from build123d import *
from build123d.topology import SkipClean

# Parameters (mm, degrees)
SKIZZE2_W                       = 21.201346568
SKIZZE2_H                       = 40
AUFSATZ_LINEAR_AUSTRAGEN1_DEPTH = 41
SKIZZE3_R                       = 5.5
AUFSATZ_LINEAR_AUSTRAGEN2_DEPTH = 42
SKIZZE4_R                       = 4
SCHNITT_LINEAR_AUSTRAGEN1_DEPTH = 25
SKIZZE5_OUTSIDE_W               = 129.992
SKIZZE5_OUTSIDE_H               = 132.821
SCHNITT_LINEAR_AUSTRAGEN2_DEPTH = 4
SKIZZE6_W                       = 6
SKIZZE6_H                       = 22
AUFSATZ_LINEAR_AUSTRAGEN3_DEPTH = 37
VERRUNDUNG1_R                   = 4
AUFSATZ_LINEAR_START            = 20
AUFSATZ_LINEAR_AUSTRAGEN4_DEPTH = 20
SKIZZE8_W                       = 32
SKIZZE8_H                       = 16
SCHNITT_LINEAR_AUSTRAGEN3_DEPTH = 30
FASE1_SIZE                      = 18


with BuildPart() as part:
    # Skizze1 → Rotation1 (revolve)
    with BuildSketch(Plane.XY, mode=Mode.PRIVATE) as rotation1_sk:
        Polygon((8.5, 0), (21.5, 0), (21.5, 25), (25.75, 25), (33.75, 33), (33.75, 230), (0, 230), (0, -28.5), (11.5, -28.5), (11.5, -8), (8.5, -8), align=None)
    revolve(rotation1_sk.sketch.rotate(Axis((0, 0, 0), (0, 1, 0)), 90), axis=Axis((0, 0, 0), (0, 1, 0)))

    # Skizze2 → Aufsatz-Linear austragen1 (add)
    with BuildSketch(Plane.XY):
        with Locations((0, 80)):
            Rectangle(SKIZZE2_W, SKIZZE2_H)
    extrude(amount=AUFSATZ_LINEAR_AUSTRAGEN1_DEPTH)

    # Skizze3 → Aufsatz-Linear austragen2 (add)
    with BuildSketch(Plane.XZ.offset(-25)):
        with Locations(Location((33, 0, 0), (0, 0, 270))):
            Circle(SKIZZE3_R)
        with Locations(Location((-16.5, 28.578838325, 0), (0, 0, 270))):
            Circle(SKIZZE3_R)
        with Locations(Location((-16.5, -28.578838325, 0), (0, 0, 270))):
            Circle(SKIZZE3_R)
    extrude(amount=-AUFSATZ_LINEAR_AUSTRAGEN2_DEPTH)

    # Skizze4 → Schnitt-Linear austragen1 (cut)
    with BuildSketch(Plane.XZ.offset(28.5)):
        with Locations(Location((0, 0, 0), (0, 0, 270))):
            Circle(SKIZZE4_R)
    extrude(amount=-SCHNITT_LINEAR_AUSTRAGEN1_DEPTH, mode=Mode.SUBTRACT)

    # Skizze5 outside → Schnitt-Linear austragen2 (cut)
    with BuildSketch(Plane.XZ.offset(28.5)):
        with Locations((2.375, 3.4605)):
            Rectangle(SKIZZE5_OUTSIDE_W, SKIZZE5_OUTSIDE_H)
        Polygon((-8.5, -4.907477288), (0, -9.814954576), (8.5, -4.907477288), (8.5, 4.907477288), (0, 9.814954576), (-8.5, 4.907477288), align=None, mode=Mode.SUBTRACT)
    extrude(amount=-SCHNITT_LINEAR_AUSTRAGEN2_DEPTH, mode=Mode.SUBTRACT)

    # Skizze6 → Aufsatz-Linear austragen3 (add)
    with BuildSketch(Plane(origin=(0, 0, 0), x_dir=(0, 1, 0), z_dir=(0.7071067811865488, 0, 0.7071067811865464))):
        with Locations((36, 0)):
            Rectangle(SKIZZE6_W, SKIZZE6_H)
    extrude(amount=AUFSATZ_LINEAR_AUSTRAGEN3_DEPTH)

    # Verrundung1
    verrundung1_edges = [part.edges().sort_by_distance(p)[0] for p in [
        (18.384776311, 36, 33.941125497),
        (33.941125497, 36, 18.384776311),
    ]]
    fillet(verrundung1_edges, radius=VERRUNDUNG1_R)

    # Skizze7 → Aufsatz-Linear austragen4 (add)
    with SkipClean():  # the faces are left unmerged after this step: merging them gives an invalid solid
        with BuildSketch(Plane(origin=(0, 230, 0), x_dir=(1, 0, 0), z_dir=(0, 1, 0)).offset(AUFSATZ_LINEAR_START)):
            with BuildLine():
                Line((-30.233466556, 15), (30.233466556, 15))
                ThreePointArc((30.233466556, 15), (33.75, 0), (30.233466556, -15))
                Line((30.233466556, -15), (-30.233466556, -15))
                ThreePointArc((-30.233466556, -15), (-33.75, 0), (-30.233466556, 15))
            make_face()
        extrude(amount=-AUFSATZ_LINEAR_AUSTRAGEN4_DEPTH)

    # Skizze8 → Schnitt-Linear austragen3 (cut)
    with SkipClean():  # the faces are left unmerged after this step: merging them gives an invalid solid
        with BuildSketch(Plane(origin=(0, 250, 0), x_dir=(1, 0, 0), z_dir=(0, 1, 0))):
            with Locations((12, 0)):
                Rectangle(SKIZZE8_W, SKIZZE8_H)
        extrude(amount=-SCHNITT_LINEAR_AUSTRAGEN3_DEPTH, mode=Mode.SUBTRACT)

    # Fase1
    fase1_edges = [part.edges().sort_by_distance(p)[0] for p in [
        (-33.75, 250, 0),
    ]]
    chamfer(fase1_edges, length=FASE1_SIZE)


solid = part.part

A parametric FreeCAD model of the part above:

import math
import FreeCAD as App
import Part
import Sketcher

V = App.Vector
Q = App.Units.Quantity


def edges_at(feature, points):
    """Names of the edges that pass closest to the given points."""
    edges = feature.Shape.Edges
    near = lambda p: min(range(len(edges)), key=lambda i: edges[i].distToShape(Part.Vertex(*p))[0])
    return sorted({f"Edge{near(p) + 1}" for p in points})


def add_polygon(sketch, points):
    """Adds a closed chain of lines whose ends are joined by coincident constraints."""
    first, n = sketch.GeometryCount, len(points)
    for a, b in zip(points, points[1:] + points[:1]):
        sketch.addGeometry(Part.LineSegment(App.Vector(*a, 0), App.Vector(*b, 0)), False)
    for i in range(n):
        sketch.addConstraint(Sketcher.Constraint("Coincident", first + i, 2, first + (i + 1) % n, 1))

doc = App.newDocument("Part")
body = doc.addObject("PartDesign::Body", "Body")

sketch1 = doc.addObject("Sketcher::SketchObject", "Sketch")
body.addObject(sketch1)
sketch1.AttachmentSupport = (doc.XY_Plane, [""])
sketch1.MapMode = "FlatFace"
add_polygon(sketch1, [(8.5, 0), (21.5, 0), (21.5, 25), (25.8, 25), (33.8, 33), (33.8, 230), (0, 230), (0, -28.5), (11.5, -28.5), (11.5, -8), (8.5, -8)])
sketch1.addConstraint([
    Sketcher.Constraint("Horizontal", 0),
    Sketcher.Constraint("Vertical", 1),
    Sketcher.Constraint("Horizontal", 2),
    Sketcher.Constraint("Vertical", 4),
    Sketcher.Constraint("Horizontal", 5),
    Sketcher.Constraint("Vertical", 6),
    Sketcher.Constraint("Horizontal", 7),
    Sketcher.Constraint("Vertical", 8),
    Sketcher.Constraint("Horizontal", 9),
    Sketcher.Constraint("Vertical", 10),
    Sketcher.Constraint("PointOnObject", 0, 2, -1),
    Sketcher.Constraint("PointOnObject", 5, 2, -2),
    Sketcher.Constraint("DistanceX", 0, 1, 0, 2, 13.0),
    Sketcher.Constraint("DistanceX", 9, 2, 9, 1, 3.0),
    Sketcher.Constraint("DistanceY", 1, 1, 1, 2, 25.0),
    Sketcher.Constraint("DistanceY", 4, 1, 4, 2, 197.0),
    Sketcher.Constraint("DistanceY", 10, 1, 10, 2, 8.0),
    Sketcher.Constraint("Angle", 3, Q("45 deg")),
    Sketcher.Constraint("DistanceX", 7, 1, 7, 2, 11.5),
    Sketcher.Constraint("DistanceY", 6, 2, 6, 1, 258.5),
    Sketcher.Constraint("DistanceY", 8, 1, 8, 2, 20.5),
    Sketcher.Constraint("DistanceX", 2, 1, 2, 2, 4.25),
])
revolution = doc.addObject("PartDesign::Revolution", "Revolution")
body.addObject(revolution)
revolution.Profile = sketch1
revolution.ReferenceAxis = (sketch1, ["V_Axis"])
revolution.Angle = 360

sketch2 = doc.addObject("Sketcher::SketchObject", "Sketch001")
body.addObject(sketch2)
sketch2.AttachmentSupport = (doc.XY_Plane, [""])
sketch2.MapMode = "FlatFace"
add_polygon(sketch2, [(-11, 100), (-11, 60), (11, 60), (11, 100)])
sketch2.addConstraint([
    Sketcher.Constraint("Vertical", 0),
    Sketcher.Constraint("Horizontal", 1),
    Sketcher.Constraint("Vertical", 2),
    Sketcher.Constraint("Horizontal", 3),
    Sketcher.Constraint("DistanceY", 0, 2, 0, 1, 40.0),
    Sketcher.Constraint("DistanceY", -1, 1, 0, 2, 60.0),
    Sketcher.Constraint("DistanceX", 1, 1, 1, 2, 21.201347),
    Sketcher.Constraint("DistanceX", 0, 2, -1, 1, 10.600673),
])
pad1 = doc.addObject("PartDesign::Pad", "Pad")
body.addObject(pad1)
pad1.Profile = sketch2
pad1.Length = 41

sketch3 = doc.addObject("Sketcher::SketchObject", "Sketch002")
body.addObject(sketch3)
sketch3.AttachmentSupport = (doc.XZ_Plane, [""])
sketch3.MapMode = "FlatFace"
sketch3.AttachmentOffset = App.Placement(V(0, 0, -25), App.Rotation())
sketch3.addGeometry([
    Part.Circle(V(33, 0, 0), V(0, 0, 1), 6),
    Part.Circle(V(-16, 29, 0), V(0, 0, 1), 6),
    Part.Circle(V(-16, -29, 0), V(0, 0, 1), 6),
], False)
sketch3.addConstraint([
    Sketcher.Constraint("Equal", 0, 1),
    Sketcher.Constraint("Equal", 1, 2),
    Sketcher.Constraint("Symmetric", 1, 3, 2, 3, -1),
    Sketcher.Constraint("PointOnObject", 0, 3, -1),
    Sketcher.Constraint("Diameter", 0, 11.0),
    Sketcher.Constraint("DistanceX", -1, 1, 0, 3, 33.0),
    Sketcher.Constraint("DistanceX", 1, 3, -1, 1, 16.5),
    Sketcher.Constraint("DistanceY", -1, 1, 1, 3, 28.578838),
])
pad2 = doc.addObject("PartDesign::Pad", "Pad001")
body.addObject(pad2)
pad2.Profile = sketch3
pad2.Length = 42
pad2.Reversed = True

sketch4 = doc.addObject("Sketcher::SketchObject", "Sketch003")
body.addObject(sketch4)
sketch4.AttachmentSupport = (doc.XZ_Plane, [""])
sketch4.MapMode = "FlatFace"
sketch4.AttachmentOffset = App.Placement(V(0, 0, 28.5), App.Rotation())
sketch4.addGeometry(Part.Circle(V(0, 0, 0), V(0, 0, 1), 4), False)
sketch4.addConstraint([
    Sketcher.Constraint("Coincident", 0, 3, -1, 1),
    Sketcher.Constraint("Diameter", 0, 8.0),
])
pocket1 = doc.addObject("PartDesign::Pocket", "Pocket")
body.addObject(pocket1)
pocket1.Profile = sketch4
pocket1.Length = 25

sketch5 = doc.addObject("Sketcher::SketchObject", "Sketch004")
body.addObject(sketch5)
sketch5.AttachmentSupport = (doc.XZ_Plane, [""])
sketch5.MapMode = "FlatFace"
sketch5.AttachmentOffset = App.Placement(V(0, 0, 28.5), App.Rotation())
add_polygon(sketch5, [(-63, 70), (-63, -63), (67, -63), (67, 70)])
add_polygon(sketch5, [(0, -10), (-8, -5), (-8, 5), (0, 10), (8, 5), (8, -5)])
sketch5.addConstraint([
    Sketcher.Constraint("Vertical", 0),
    Sketcher.Constraint("Horizontal", 1),
    Sketcher.Constraint("Vertical", 2),
    Sketcher.Constraint("Horizontal", 3),
    Sketcher.Constraint("Vertical", 5),
    Sketcher.Constraint("Vertical", 8),
    Sketcher.Constraint("Symmetric", 4, 2, 7, 2, -1, 1),
    Sketcher.Constraint("Symmetric", 6, 2, 9, 2, -1, 1),
    Sketcher.Constraint("PointOnObject", 6, 2, -2),
    Sketcher.Constraint("Parallel", 6, 9),
    Sketcher.Constraint("Horizontal", 5, 2, 7, 2),
    Sketcher.Constraint("Angle", 4, Q("150 deg")),
    Sketcher.Constraint("DistanceX", 5, 2, 7, 2, 17.0),
    Sketcher.Constraint("DistanceX", 1, 1, 1, 2, 129.992),
    Sketcher.Constraint("DistanceY", 0, 2, 0, 1, 132.821),
    Sketcher.Constraint("DistanceY", 0, 2, -1, 1, 62.95),
    Sketcher.Constraint("DistanceX", 0, 2, -1, 1, 62.621),
    Sketcher.Constraint("DistanceY", 5, 1, 5, 2, 9.814955),
])
pocket2 = doc.addObject("PartDesign::Pocket", "Pocket001")
body.addObject(pocket2)
pocket2.Profile = sketch5
pocket2.Length = 4

sketch6 = doc.addObject("Sketcher::SketchObject", "Sketch005")
body.addObject(sketch6)
sketch6.Placement = App.Placement(V(0, 0, 0), App.Rotation(V(0, 1, 0), V(-0.707106781, 0, 0.707106781), V(0.707106781, 0, 0.707106781), "ZXY"))
add_polygon(sketch6, [(33, 11), (33, -11), (39, -11), (39, 11)])
sketch6.addConstraint([
    Sketcher.Constraint("Vertical", 0),
    Sketcher.Constraint("Horizontal", 1),
    Sketcher.Constraint("Vertical", 2),
    Sketcher.Constraint("Horizontal", 3),
    Sketcher.Constraint("DistanceX", 1, 1, 1, 2, 6.0),
    Sketcher.Constraint("DistanceY", 0, 2, 0, 1, 22.0),
    Sketcher.Constraint("DistanceX", -1, 1, 0, 2, 33.0),
    Sketcher.Constraint("DistanceY", 0, 2, -1, 1, 11.0),
])
pad3 = doc.addObject("PartDesign::Pad", "Pad002")
body.addObject(pad3)
pad3.Profile = sketch6
pad3.Length = 37
doc.recompute()

fillet = doc.addObject("PartDesign::Fillet", "Fillet")
body.addObject(fillet)
fillet.Base = (pad3, edges_at(pad3, [(18.385, 36, 33.941), (33.941, 36, 18.385)]))
fillet.Radius = 4

sketch7 = doc.addObject("Sketcher::SketchObject", "Sketch006")
body.addObject(sketch7)
sketch7.AttachmentSupport = (doc.XZ_Plane, [""])
sketch7.MapMode = "FlatFace"
sketch7.AttachmentOffset = App.Placement(V(0, 0, -250), App.Rotation())
sketch7.addGeometry([
    Part.LineSegment(V(30, -15, 0), V(-30, -15, 0)),
    Part.ArcOfCircle(Part.Circle(V(0, 0, 0), V(0, 0, 1), 34), math.radians(154), math.radians(206)),
    Part.LineSegment(V(-30, 15, 0), V(30, 15, 0)),
    Part.ArcOfCircle(Part.Circle(V(0, 0, 0), V(0, 0, 1), 34), math.radians(-26), math.radians(26)),
], False)
sketch7.addConstraint([
    Sketcher.Constraint("Coincident", 0, 2, 1, 2),
    Sketcher.Constraint("Coincident", 1, 1, 2, 1),
    Sketcher.Constraint("Coincident", 2, 2, 3, 2),
    Sketcher.Constraint("Coincident", 3, 1, 0, 1),
    Sketcher.Constraint("Horizontal", 0),
    Sketcher.Constraint("Horizontal", 2),
    Sketcher.Constraint("Coincident", 1, 3, -1, 1),
    Sketcher.Constraint("Coincident", 3, 3, -1, 1),
    Sketcher.Constraint("Equal", 1, 3),
    Sketcher.Constraint("Vertical", 0, 2, 1, 1),
    Sketcher.Constraint("Radius", 1, 33.75),
    Sketcher.Constraint("DistanceY", 0, 2, -1, 1, 15.0),
])
pad4 = doc.addObject("PartDesign::Pad", "Pad003")
body.addObject(pad4)
pad4.Profile = sketch7
pad4.Length = 20

sketch8 = doc.addObject("Sketcher::SketchObject", "Sketch007")
body.addObject(sketch8)
sketch8.AttachmentSupport = (doc.XZ_Plane, [""])
sketch8.MapMode = "FlatFace"
sketch8.AttachmentOffset = App.Placement(V(0, 0, -250), App.Rotation())
add_polygon(sketch8, [(-4, -8), (-4, 8), (28, 8), (28, -8)])
sketch8.addConstraint([
    Sketcher.Constraint("Vertical", 0),
    Sketcher.Constraint("Horizontal", 1),
    Sketcher.Constraint("Vertical", 2),
    Sketcher.Constraint("Horizontal", 3),
    Sketcher.Constraint("DistanceX", 1, 1, 1, 2, 32.0),
    Sketcher.Constraint("DistanceY", 0, 1, 0, 2, 16.0),
    Sketcher.Constraint("DistanceX", 0, 2, -1, 1, 4.0),
    Sketcher.Constraint("DistanceY", -1, 1, 0, 2, 8.0),
])
pocket3 = doc.addObject("PartDesign::Pocket", "Pocket002")
body.addObject(pocket3)
pocket3.Profile = sketch8
pocket3.Length = 30
pocket3.Reversed = True
doc.recompute()

chamfer = doc.addObject("PartDesign::Chamfer", "Chamfer")
body.addObject(chamfer)
chamfer.Base = (pocket3, edges_at(pocket3, [(-33.75, 250, 0)]))
chamfer.Size = 18

doc.recompute()
